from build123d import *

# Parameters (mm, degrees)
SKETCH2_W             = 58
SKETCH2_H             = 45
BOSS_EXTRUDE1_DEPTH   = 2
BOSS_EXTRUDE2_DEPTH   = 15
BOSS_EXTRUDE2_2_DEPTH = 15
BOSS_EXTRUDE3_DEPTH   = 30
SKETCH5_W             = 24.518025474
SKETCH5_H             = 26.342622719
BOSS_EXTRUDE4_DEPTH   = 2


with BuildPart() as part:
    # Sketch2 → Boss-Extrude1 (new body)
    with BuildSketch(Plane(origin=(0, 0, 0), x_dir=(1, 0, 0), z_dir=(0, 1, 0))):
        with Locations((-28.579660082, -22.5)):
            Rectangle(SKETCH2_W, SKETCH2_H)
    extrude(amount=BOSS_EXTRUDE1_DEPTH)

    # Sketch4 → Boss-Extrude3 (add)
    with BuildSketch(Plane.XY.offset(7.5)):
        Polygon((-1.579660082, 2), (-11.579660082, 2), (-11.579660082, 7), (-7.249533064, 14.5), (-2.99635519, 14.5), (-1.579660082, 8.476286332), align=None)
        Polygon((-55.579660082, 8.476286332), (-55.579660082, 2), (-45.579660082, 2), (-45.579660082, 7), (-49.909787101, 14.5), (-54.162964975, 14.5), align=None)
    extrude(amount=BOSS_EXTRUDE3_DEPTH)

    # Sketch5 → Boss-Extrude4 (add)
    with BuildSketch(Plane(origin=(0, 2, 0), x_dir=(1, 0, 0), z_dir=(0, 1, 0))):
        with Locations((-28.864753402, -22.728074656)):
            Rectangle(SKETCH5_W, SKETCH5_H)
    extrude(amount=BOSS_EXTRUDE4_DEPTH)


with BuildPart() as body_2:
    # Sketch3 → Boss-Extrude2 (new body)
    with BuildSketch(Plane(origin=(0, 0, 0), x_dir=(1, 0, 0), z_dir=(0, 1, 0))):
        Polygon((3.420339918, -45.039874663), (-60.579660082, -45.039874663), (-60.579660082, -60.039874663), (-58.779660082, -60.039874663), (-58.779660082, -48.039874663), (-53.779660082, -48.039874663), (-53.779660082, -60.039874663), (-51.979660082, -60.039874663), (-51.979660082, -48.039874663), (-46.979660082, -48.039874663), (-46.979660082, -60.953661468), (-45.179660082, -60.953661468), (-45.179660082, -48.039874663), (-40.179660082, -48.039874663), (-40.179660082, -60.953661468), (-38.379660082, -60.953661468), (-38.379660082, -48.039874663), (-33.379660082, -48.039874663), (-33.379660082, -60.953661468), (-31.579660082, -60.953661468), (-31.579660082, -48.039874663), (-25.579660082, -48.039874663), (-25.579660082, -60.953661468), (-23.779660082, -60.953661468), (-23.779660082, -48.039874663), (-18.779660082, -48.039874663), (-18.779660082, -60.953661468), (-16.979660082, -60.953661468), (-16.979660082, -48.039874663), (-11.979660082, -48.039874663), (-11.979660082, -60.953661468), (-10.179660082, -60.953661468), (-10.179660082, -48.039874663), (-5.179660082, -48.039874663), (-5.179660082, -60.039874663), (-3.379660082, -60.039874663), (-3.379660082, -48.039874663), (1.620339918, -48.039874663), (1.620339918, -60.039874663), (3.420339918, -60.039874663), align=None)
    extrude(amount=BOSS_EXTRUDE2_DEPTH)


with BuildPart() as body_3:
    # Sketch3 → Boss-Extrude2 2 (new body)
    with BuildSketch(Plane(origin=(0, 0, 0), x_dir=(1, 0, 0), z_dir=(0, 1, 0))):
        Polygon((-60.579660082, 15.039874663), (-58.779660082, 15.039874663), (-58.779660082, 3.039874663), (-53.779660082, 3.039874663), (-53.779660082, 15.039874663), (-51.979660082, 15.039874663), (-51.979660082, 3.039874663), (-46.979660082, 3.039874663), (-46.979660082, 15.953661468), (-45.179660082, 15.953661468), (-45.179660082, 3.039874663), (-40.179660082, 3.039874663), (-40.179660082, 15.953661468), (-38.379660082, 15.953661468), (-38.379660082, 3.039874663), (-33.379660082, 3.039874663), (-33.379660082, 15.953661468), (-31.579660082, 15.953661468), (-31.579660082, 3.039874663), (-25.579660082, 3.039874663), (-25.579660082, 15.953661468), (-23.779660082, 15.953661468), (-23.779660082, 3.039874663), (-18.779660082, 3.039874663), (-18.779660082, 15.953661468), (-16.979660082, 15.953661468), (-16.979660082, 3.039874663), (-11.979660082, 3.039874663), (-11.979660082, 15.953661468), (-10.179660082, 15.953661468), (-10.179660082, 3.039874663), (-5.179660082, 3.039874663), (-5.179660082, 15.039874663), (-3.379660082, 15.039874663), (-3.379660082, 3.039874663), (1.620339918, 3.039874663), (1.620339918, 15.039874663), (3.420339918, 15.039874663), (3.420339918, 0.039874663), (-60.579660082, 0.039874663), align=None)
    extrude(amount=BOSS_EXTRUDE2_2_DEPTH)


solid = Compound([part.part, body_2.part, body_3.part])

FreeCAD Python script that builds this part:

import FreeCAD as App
import Part
import Sketcher

V = App.Vector
Q = App.Units.Quantity


def add_polygon(sketch, points):
    """Adds a closed chain of lines whose ends are joined by coincident constraints."""
    first, n = sketch.GeometryCount, len(points)
    for a, b in zip(points, points[1:] + points[:1]):
        sketch.addGeometry(Part.LineSegment(App.Vector(*a, 0), App.Vector(*b, 0)), False)
    for i in range(n):
        sketch.addConstraint(Sketcher.Constraint("Coincident", first + i, 2, first + (i + 1) % n, 1))

doc = App.newDocument("Part")
params = doc.addObject("Spreadsheet::Sheet", "Params")
for row, (alias, value) in enumerate([
    ("sketch1_width", "58 mm"),
    ("sketch1_height", "45 mm"),
    ("pad1_length", "2 mm"),
    ("sketch2_width", "10 mm"),
    ("sketch2_height", "5 mm"),
    ("pad2_length", "30 mm"),
    ("pad3_length", "2 mm"),
    ("sketch4_width", "64 mm"),
    ("sketch4_width2", "5 mm"),
    ("sketch4_width3", "6 mm"),
    ("sketch4_height", "15 mm"),
    ("sketch4_height2", "12 mm"),
    ("pad4_length", "15 mm"),
    ("sketch5_width", "64 mm"),
    ("sketch5_width2", "5 mm"),
    ("sketch5_width3", "6 mm"),
    ("sketch5_height", "15 mm"),
    ("sketch5_height2", "12 mm"),
    ("pad5_length", "15 mm"),
], start=1):
    params.set(f"A{row}", alias)
    params.set(f"B{row}", "=" + value)
    params.setAlias(f"B{row}", alias)

body = doc.addObject("PartDesign::Body", "Body")

# Sketch on XZ plane
sketch1 = body.newObject("Sketcher::SketchObject", "Sketch")
sketch1.AttachmentSupport = (doc.getObject("XZ_Plane"), [""])
sketch1.MapMode = "FlatFace"
add_polygon(sketch1, [(-58, 0), (-58, 45), (0, 45), (0, 0)])  # lines 0-3
sketch1.addConstraint([
    Sketcher.Constraint("Vertical", 0),
    Sketcher.Constraint("Horizontal", 1),
    Sketcher.Constraint("Vertical", 2),
    Sketcher.Constraint("Horizontal", 3),
    Sketcher.Constraint("PointOnObject", 2, 2, -1),
    Sketcher.Constraint("DistanceX", 1, 1, 1, 2, 58.0),
    Sketcher.Constraint("DistanceY", 0, 1, 0, 2, 45.0),
    Sketcher.Constraint("DistanceX", 0, 2, -1, 1, 57.57966),
])
sketch1.setExpression("Constraints[9]", "Params.sketch1_width")
sketch1.setExpression("Constraints[10]", "Params.sketch1_height")
pad1 = body.newObject("PartDesign::Pad", "Pad")
pad1.Profile = sketch1
pad1.setExpression("Length", "Params.pad1_length")
pad1.Reversed = True

# Sketch on XY plane
sketch2 = body.newObject("Sketcher::SketchObject", "Sketch001")
sketch2.AttachmentSupport = (doc.getObject("XY_Plane"), [""])
sketch2.MapMode = "FlatFace"
sketch2.AttachmentOffset = App.Placement(V(0, 0, 7.5), App.Rotation())
add_polygon(sketch2, [(-11.6, 2), (-1.6, 2), (-1.6, 8.5), (-3, 14.5), (-7.2, 14.5), (-11.6, 7)])  # lines 0-5
add_polygon(sketch2, [(-55.6, 8.5), (-55.6, 2), (-45.6, 2), (-45.6, 7), (-49.9, 14.5), (-54.2, 14.5)])  # lines 6-11
sketch2.addConstraint([
    Sketcher.Constraint("Horizontal", 0),
    Sketcher.Constraint("Vertical", 1),
    Sketcher.Constraint("Horizontal", 3),
    Sketcher.Constraint("Vertical", 5),
    Sketcher.Constraint("Vertical", 6),
    Sketcher.Constraint("Horizontal", 7),
    Sketcher.Constraint("Vertical", 8),
    Sketcher.Constraint("Horizontal", 10),
    Sketcher.Constraint("Horizontal", 5, 2, 6, 2),
    Sketcher.Constraint("Horizontal", 4, 2, 8, 2),
    Sketcher.Constraint("Horizontal", 3, 2, 9, 2),
    Sketcher.Constraint("Horizontal", 1, 2, 11, 2),
    Sketcher.Constraint("Equal", 0, 7),
    Sketcher.Constraint("Equal", 3, 10),
    Sketcher.Constraint("Equal", 4, 9),
    Sketcher.Constraint("DistanceX", 0, 1, 0, 2, 10.0),
    Sketcher.Constraint("DistanceY", 5, 2, 5, 1, 5.0),
    Sketcher.Constraint("Angle", 4, Q("-120 deg")),
    Sketcher.Constraint("DistanceY", -1, 1, 0, 2, 2.0),
    Sketcher.Constraint("DistanceX", 6, 2, 5, 2, 44.0),
    Sketcher.Constraint("DistanceY", -1, 1, 2, 2, 14.5),
    Sketcher.Constraint("DistanceX", 3, 2, 3, 1, 4.253178),
    Sketcher.Constraint("DistanceY", 1, 1, 1, 2, 6.476286),
    Sketcher.Constraint("DistanceX", 0, 2, -1, 1, 1.57966),
])
sketch2.setExpression("Constraints[27]", "Params.sketch2_width")
sketch2.setExpression("Constraints[28]", "Params.sketch2_height")
pad2 = body.newObject("PartDesign::Pad", "Pad001")
pad2.Profile = sketch2
pad2.setExpression("Length", "Params.pad2_length")

# Sketch on XZ plane
sketch3 = body.newObject("Sketcher::SketchObject", "Sketch002")
sketch3.AttachmentSupport = (doc.getObject("XZ_Plane"), [""])
sketch3.MapMode = "FlatFace"
sketch3.AttachmentOffset = App.Placement(V(0, 0, -2), App.Rotation())
add_polygon(sketch3, [(-41, 10), (-41, 36), (-17, 36), (-17, 10)])  # lines 0-3
sketch3.addConstraint([
    Sketcher.Constraint("Vertical", 0),
    Sketcher.Constraint("Horizontal", 1),
    Sketcher.Constraint("Vertical", 2),
    Sketcher.Constraint("Horizontal", 3),
    Sketcher.Constraint("DistanceX", 1, 1, 1, 2, 24.518025),
    Sketcher.Constraint("DistanceY", 0, 1, 0, 2, 26.342623),
    Sketcher.Constraint("DistanceX", 1, 2, -1, 1, 16.605741),
    Sketcher.Constraint("DistanceY", -1, 1, 0, 2, 35.899386),
])
pad3 = body.newObject("PartDesign::Pad", "Pad002")
pad3.Profile = sketch3
pad3.setExpression("Length", "Params.pad3_length")
pad3.Reversed = True
body2 = doc.addObject("PartDesign::Body", "Body001")

# Sketch on XZ plane
sketch4 = body2.newObject("Sketcher::SketchObject", "Sketch003")
sketch4.AttachmentSupport = (doc.getObject("XZ_Plane001"), [""])
sketch4.MapMode = "FlatFace"
add_polygon(sketch4, [(3.4, 45), (-60.6, 45), (-60.6, 60), (-58.8, 60), (-58.8, 48), (-53.8, 48), (-53.8, 60), (-52, 60), (-52, 48), (-47, 48), (-47, 61), (-45.2, 61), (-45.2, 48), (-40.2, 48), (-40.2, 61), (-38.4, 61), (-38.4, 48), (-33.4, 48), (-33.4, 61), (-31.6, 61), (-31.6, 48), (-25.6, 48), (-25.6, 61), (-23.8, 61), (-23.8, 48), (-18.8, 48), (-18.8, 61), (-17, 61), (-17, 48), (-12, 48), (-12, 61), (-10.2, 61), (-10.2, 48), (-5.2, 48), (-5.2, 60), (-3.4, 60), (-3.4, 48), (1.6, 48), (1.6, 60), (3.4, 60)])  # lines 0-39
sketch4.addConstraint([
    Sketcher.Constraint("Horizontal", 0),
    Sketcher.Constraint("Vertical", 1),
    Sketcher.Constraint("Horizontal", 2),
    Sketcher.Constraint("Vertical", 3),
    Sketcher.Constraint("Horizontal", 4),
    Sketcher.Constraint("Vertical", 5),
    Sketcher.Constraint("Horizontal", 6),
    Sketcher.Constraint("Vertical", 7),
    Sketcher.Constraint("Horizontal", 8),
    Sketcher.Constraint("Vertical", 9),
    Sketcher.Constraint("Horizontal", 10),
    Sketcher.Constraint("Vertical", 11),
    Sketcher.Constraint("Horizontal", 12),
    Sketcher.Constraint("Vertical", 13),
    Sketcher.Constraint("Horizontal", 14),
    Sketcher.Constraint("Vertical", 15),
    Sketcher.Constraint("Horizontal", 16),
    Sketcher.Constraint("Vertical", 17),
    Sketcher.Constraint("Horizontal", 18),
    Sketcher.Constraint("Vertical", 19),
    Sketcher.Constraint("Horizontal", 20),
    Sketcher.Constraint("Vertical", 21),
    Sketcher.Constraint("Horizontal", 22),
    Sketcher.Constraint("Vertical", 23),
    Sketcher.Constraint("Horizontal", 24),
    Sketcher.Constraint("Vertical", 25),
    Sketcher.Constraint("Horizontal", 26),
    Sketcher.Constraint("Vertical", 27),
    Sketcher.Constraint("Horizontal", 28),
    Sketcher.Constraint("Vertical", 29),
    Sketcher.Constraint("Horizontal", 30),
    Sketcher.Constraint("Vertical", 31),
    Sketcher.Constraint("Horizontal", 32),
    Sketcher.Constraint("Vertical", 33),
    Sketcher.Constraint("Horizontal", 34),
    Sketcher.Constraint("Vertical", 35),
    Sketcher.Constraint("Horizontal", 36),
    Sketcher.Constraint("Vertical", 37),
    Sketcher.Constraint("Horizontal", 38),
    Sketcher.Constraint("Vertical", 39),
    Sketcher.Constraint("Horizontal", 2, 2, 5, 2),
    Sketcher.Constraint("Horizontal", 4, 2, 7, 2),
    Sketcher.Constraint("Horizontal", 8, 2, 11, 2),
    Sketcher.Constraint("Horizontal", 10, 2, 13, 2),
    Sketcher.Constraint("Horizontal", 12, 2, 15, 2),
    Sketcher.Constraint("Horizontal", 14, 2, 17, 2),
    Sketcher.Constraint("Horizontal", 16, 2, 19, 2),
    Sketcher.Constraint("Horizontal", 18, 2, 21, 2),
    Sketcher.Constraint("Horizontal", 20, 2, 23, 2),
    Sketcher.Constraint("Horizontal", 22, 2, 25, 2),
    Sketcher.Constraint("Horizontal", 24, 2, 27, 2),
    Sketcher.Constraint("Horizontal", 26, 2, 29, 2),
    Sketcher.Constraint("Horizontal", 28, 2, 31, 2),
    Sketcher.Constraint("Horizontal", 6, 2, 33, 2),
    Sketcher.Constraint("Horizontal", 32, 2, 35, 2),
    Sketcher.Constraint("Horizontal", 34, 2, 37, 2),
    Sketcher.Constraint("Equal", 2, 6),
    Sketcher.Constraint("Equal", 4, 8),
    Sketcher.Constraint("Equal", 6, 10),
    Sketcher.Constraint("Equal", 8, 12),
    Sketcher.Constraint("Equal", 10, 14),
    Sketcher.Constraint("Equal", 12, 16),
    Sketcher.Constraint("Equal", 14, 18),
    Sketcher.Constraint("Equal", 18, 22),
    Sketcher.Constraint("Equal", 16, 24),
    Sketcher.Constraint("Equal", 22, 26),
    Sketcher.Constraint("Equal", 24, 28),
    Sketcher.Constraint("Equal", 26, 30),
    Sketcher.Constraint("Equal", 28, 32),
    Sketcher.Constraint("Equal", 30, 34),
    Sketcher.Constraint("Equal", 32, 36),
    Sketcher.Constraint("Equal", 34, 38),
    Sketcher.Constraint("DistanceX", 0, 2, 0, 1, 64.0),
    Sketcher.Constraint("DistanceX", 4, 1, 4, 2, 5.0),
    Sketcher.Constraint("DistanceX", 20, 1, 20, 2, 6.0),
    Sketcher.Constraint("DistanceY", 1, 1, 1, 2, 15.0),
    Sketcher.Constraint("DistanceY", 3, 2, 3, 1, 12.0),
    Sketcher.Constraint("DistanceY", 9, 1, 9, 2, 12.913787),
    Sketcher.Constraint("DistanceX", 0, 2, -1, 1, 60.57966),
    Sketcher.Constraint("DistanceY", -1, 1, 9, 2, 60.953661),
])
sketch4.setExpression("Constraints[112]", "Params.sketch4_width")
sketch4.setExpression("Constraints[113]", "Params.sketch4_width2")
sketch4.setExpression("Constraints[114]", "Params.sketch4_width3")
sketch4.setExpression("Constraints[115]", "Params.sketch4_height")
sketch4.setExpression("Constraints[116]", "Params.sketch4_height2")
pad4 = body2.newObject("PartDesign::Pad", "Pad003")
pad4.Profile = sketch4
pad4.setExpression("Length", "Params.pad4_length")
pad4.Reversed = True
body3 = doc.addObject("PartDesign::Body", "Body002")

# Sketch on XZ plane
sketch5 = body3.newObject("Sketcher::SketchObject", "Sketch004")
sketch5.AttachmentSupport = (doc.getObject("XZ_Plane002"), [""])
sketch5.MapMode = "FlatFace"
add_polygon(sketch5, [(-58.8, -15), (-60.6, -15), (-60.6, 0), (3.4, 0), (3.4, -15), (1.6, -15), (1.6, -3), (-3.4, -3), (-3.4, -15), (-5.2, -15), (-5.2, -3), (-10.2, -3), (-10.2, -16), (-12, -16), (-12, -3), (-17, -3), (-17, -16), (-18.8, -16), (-18.8, -3), (-23.8, -3), (-23.8, -16), (-25.6, -16), (-25.6, -3), (-31.6, -3), (-31.6, -16), (-33.4, -16), (-33.4, -3), (-38.4, -3), (-38.4, -16), (-40.2, -16), (-40.2, -3), (-45.2, -3), (-45.2, -16), (-47, -16), (-47, -3), (-52, -3), (-52, -15), (-53.8, -15), (-53.8, -3), (-58.8, -3)])  # lines 0-39
sketch5.addConstraint([
    Sketcher.Constraint("Horizontal", 0),
    Sketcher.Constraint("Vertical", 1),
    Sketcher.Constraint("Horizontal", 2),
    Sketcher.Constraint("Vertical", 3),
    Sketcher.Constraint("Horizontal", 4),
    Sketcher.Constraint("Vertical", 5),
    Sketcher.Constraint("Horizontal", 6),
    Sketcher.Constraint("Vertical", 7),
    Sketcher.Constraint("Horizontal", 8),
    Sketcher.Constraint("Vertical", 9),
    Sketcher.Constraint("Horizontal", 10),
    Sketcher.Constraint("Vertical", 11),
    Sketcher.Constraint("Horizontal", 12),
    Sketcher.Constraint("Vertical", 13),
    Sketcher.Constraint("Horizontal", 14),
    Sketcher.Constraint("Vertical", 15),
    Sketcher.Constraint("Horizontal", 16),
    Sketcher.Constraint("Vertical", 17),
    Sketcher.Constraint("Horizontal", 18),
    Sketcher.Constraint("Vertical", 19),
    Sketcher.Constraint("Horizontal", 20),
    Sketcher.Constraint("Vertical", 21),
    Sketcher.Constraint("Horizontal", 22),
    Sketcher.Constraint("Vertical", 23),
    Sketcher.Constraint("Horizontal", 24),
    Sketcher.Constraint("Vertical", 25),
    Sketcher.Constraint("Horizontal", 26),
    Sketcher.Constraint("Vertical", 27),
    Sketcher.Constraint("Horizontal", 28),
    Sketcher.Constraint("Vertical", 29),
    Sketcher.Constraint("Horizontal", 30),
    Sketcher.Constraint("Vertical", 31),
    Sketcher.Constraint("Horizontal", 32),
    Sketcher.Constraint("Vertical", 33),
    Sketcher.Constraint("Horizontal", 34),
    Sketcher.Constraint("Vertical", 35),
    Sketcher.Constraint("Horizontal", 36),
    Sketcher.Constraint("Vertical", 37),
    Sketcher.Constraint("Horizontal", 38),
    Sketcher.Constraint("Vertical", 39),
    Sketcher.Constraint("Horizontal", 0, 2, 3, 2),
    Sketcher.Constraint("Horizontal", 4, 2, 7, 2),
    Sketcher.Constraint("Horizontal", 6, 2, 9, 2),
    Sketcher.Constraint("Horizontal", 10, 2, 13, 2),
    Sketcher.Constraint("Horizontal", 12, 2, 15, 2),
    Sketcher.Constraint("Horizontal", 14, 2, 17, 2),
    Sketcher.Constraint("Horizontal", 16, 2, 19, 2),
    Sketcher.Constraint("Horizontal", 18, 2, 21, 2),
    Sketcher.Constraint("Horizontal", 20, 2, 23, 2),
    Sketcher.Constraint("Horizontal", 22, 2, 25, 2),
    Sketcher.Constraint("Horizontal", 24, 2, 27, 2),
    Sketcher.Constraint("Horizontal", 26, 2, 29, 2),
    Sketcher.Constraint("Horizontal", 28, 2, 31, 2),
    Sketcher.Constraint("Horizontal", 30, 2, 33, 2),
    Sketcher.Constraint("Horizontal", 8, 2, 35, 2),
    Sketcher.Constraint("Horizontal", 34, 2, 37, 2),
    Sketcher.Constraint("Equal", 0, 4),
    Sketcher.Constraint("Equal", 4, 8),
    Sketcher.Constraint("Equal", 6, 10),
    Sketcher.Constraint("Equal", 8, 12),
    Sketcher.Constraint("Equal", 10, 14),
    Sketcher.Constraint("Equal", 12, 16),
    Sketcher.Constraint("Equal", 14, 18),
    Sketcher.Constraint("Equal", 16, 20),
    Sketcher.Constraint("Equal", 20, 24),
    Sketcher.Constraint("Equal", 18, 26),
    Sketcher.Constraint("Equal", 24, 28),
    Sketcher.Constraint("Equal", 26, 30),
    Sketcher.Constraint("Equal", 28, 32),
    Sketcher.Constraint("Equal", 30, 34),
    Sketcher.Constraint("Equal", 32, 36),
    Sketcher.Constraint("Equal", 34, 38),
    Sketcher.Constraint("DistanceX", 2, 1, 2, 2, 64.0),
    Sketcher.Constraint("DistanceX", 6, 2, 6, 1, 5.0),
    Sketcher.Constraint("DistanceX", 22, 2, 22, 1, 6.0),
    Sketcher.Constraint("DistanceY", 1, 1, 1, 2, 15.0),
    Sketcher.Constraint("DistanceY", 5, 1, 5, 2, 12.0),
    Sketcher.Constraint("DistanceY", 11, 2, 11, 1, 12.913787),
    Sketcher.Constraint("DistanceX", 0, 2, -1, 1, 60.57966),
    Sketcher.Constraint("DistanceY", 11, 2, -1, 1, 15.953661),
])
sketch5.setExpression("Constraints[112]", "Params.sketch5_width")
sketch5.setExpression("Constraints[113]", "Params.sketch5_width2")
sketch5.setExpression("Constraints[114]", "Params.sketch5_width3")
sketch5.setExpression("Constraints[115]", "Params.sketch5_height")
sketch5.setExpression("Constraints[116]", "Params.sketch5_height2")
pad5 = body3.newObject("PartDesign::Pad", "Pad004")
pad5.Profile = sketch5
pad5.setExpression("Length", "Params.pad5_length")
pad5.Reversed = True

doc.recompute()
